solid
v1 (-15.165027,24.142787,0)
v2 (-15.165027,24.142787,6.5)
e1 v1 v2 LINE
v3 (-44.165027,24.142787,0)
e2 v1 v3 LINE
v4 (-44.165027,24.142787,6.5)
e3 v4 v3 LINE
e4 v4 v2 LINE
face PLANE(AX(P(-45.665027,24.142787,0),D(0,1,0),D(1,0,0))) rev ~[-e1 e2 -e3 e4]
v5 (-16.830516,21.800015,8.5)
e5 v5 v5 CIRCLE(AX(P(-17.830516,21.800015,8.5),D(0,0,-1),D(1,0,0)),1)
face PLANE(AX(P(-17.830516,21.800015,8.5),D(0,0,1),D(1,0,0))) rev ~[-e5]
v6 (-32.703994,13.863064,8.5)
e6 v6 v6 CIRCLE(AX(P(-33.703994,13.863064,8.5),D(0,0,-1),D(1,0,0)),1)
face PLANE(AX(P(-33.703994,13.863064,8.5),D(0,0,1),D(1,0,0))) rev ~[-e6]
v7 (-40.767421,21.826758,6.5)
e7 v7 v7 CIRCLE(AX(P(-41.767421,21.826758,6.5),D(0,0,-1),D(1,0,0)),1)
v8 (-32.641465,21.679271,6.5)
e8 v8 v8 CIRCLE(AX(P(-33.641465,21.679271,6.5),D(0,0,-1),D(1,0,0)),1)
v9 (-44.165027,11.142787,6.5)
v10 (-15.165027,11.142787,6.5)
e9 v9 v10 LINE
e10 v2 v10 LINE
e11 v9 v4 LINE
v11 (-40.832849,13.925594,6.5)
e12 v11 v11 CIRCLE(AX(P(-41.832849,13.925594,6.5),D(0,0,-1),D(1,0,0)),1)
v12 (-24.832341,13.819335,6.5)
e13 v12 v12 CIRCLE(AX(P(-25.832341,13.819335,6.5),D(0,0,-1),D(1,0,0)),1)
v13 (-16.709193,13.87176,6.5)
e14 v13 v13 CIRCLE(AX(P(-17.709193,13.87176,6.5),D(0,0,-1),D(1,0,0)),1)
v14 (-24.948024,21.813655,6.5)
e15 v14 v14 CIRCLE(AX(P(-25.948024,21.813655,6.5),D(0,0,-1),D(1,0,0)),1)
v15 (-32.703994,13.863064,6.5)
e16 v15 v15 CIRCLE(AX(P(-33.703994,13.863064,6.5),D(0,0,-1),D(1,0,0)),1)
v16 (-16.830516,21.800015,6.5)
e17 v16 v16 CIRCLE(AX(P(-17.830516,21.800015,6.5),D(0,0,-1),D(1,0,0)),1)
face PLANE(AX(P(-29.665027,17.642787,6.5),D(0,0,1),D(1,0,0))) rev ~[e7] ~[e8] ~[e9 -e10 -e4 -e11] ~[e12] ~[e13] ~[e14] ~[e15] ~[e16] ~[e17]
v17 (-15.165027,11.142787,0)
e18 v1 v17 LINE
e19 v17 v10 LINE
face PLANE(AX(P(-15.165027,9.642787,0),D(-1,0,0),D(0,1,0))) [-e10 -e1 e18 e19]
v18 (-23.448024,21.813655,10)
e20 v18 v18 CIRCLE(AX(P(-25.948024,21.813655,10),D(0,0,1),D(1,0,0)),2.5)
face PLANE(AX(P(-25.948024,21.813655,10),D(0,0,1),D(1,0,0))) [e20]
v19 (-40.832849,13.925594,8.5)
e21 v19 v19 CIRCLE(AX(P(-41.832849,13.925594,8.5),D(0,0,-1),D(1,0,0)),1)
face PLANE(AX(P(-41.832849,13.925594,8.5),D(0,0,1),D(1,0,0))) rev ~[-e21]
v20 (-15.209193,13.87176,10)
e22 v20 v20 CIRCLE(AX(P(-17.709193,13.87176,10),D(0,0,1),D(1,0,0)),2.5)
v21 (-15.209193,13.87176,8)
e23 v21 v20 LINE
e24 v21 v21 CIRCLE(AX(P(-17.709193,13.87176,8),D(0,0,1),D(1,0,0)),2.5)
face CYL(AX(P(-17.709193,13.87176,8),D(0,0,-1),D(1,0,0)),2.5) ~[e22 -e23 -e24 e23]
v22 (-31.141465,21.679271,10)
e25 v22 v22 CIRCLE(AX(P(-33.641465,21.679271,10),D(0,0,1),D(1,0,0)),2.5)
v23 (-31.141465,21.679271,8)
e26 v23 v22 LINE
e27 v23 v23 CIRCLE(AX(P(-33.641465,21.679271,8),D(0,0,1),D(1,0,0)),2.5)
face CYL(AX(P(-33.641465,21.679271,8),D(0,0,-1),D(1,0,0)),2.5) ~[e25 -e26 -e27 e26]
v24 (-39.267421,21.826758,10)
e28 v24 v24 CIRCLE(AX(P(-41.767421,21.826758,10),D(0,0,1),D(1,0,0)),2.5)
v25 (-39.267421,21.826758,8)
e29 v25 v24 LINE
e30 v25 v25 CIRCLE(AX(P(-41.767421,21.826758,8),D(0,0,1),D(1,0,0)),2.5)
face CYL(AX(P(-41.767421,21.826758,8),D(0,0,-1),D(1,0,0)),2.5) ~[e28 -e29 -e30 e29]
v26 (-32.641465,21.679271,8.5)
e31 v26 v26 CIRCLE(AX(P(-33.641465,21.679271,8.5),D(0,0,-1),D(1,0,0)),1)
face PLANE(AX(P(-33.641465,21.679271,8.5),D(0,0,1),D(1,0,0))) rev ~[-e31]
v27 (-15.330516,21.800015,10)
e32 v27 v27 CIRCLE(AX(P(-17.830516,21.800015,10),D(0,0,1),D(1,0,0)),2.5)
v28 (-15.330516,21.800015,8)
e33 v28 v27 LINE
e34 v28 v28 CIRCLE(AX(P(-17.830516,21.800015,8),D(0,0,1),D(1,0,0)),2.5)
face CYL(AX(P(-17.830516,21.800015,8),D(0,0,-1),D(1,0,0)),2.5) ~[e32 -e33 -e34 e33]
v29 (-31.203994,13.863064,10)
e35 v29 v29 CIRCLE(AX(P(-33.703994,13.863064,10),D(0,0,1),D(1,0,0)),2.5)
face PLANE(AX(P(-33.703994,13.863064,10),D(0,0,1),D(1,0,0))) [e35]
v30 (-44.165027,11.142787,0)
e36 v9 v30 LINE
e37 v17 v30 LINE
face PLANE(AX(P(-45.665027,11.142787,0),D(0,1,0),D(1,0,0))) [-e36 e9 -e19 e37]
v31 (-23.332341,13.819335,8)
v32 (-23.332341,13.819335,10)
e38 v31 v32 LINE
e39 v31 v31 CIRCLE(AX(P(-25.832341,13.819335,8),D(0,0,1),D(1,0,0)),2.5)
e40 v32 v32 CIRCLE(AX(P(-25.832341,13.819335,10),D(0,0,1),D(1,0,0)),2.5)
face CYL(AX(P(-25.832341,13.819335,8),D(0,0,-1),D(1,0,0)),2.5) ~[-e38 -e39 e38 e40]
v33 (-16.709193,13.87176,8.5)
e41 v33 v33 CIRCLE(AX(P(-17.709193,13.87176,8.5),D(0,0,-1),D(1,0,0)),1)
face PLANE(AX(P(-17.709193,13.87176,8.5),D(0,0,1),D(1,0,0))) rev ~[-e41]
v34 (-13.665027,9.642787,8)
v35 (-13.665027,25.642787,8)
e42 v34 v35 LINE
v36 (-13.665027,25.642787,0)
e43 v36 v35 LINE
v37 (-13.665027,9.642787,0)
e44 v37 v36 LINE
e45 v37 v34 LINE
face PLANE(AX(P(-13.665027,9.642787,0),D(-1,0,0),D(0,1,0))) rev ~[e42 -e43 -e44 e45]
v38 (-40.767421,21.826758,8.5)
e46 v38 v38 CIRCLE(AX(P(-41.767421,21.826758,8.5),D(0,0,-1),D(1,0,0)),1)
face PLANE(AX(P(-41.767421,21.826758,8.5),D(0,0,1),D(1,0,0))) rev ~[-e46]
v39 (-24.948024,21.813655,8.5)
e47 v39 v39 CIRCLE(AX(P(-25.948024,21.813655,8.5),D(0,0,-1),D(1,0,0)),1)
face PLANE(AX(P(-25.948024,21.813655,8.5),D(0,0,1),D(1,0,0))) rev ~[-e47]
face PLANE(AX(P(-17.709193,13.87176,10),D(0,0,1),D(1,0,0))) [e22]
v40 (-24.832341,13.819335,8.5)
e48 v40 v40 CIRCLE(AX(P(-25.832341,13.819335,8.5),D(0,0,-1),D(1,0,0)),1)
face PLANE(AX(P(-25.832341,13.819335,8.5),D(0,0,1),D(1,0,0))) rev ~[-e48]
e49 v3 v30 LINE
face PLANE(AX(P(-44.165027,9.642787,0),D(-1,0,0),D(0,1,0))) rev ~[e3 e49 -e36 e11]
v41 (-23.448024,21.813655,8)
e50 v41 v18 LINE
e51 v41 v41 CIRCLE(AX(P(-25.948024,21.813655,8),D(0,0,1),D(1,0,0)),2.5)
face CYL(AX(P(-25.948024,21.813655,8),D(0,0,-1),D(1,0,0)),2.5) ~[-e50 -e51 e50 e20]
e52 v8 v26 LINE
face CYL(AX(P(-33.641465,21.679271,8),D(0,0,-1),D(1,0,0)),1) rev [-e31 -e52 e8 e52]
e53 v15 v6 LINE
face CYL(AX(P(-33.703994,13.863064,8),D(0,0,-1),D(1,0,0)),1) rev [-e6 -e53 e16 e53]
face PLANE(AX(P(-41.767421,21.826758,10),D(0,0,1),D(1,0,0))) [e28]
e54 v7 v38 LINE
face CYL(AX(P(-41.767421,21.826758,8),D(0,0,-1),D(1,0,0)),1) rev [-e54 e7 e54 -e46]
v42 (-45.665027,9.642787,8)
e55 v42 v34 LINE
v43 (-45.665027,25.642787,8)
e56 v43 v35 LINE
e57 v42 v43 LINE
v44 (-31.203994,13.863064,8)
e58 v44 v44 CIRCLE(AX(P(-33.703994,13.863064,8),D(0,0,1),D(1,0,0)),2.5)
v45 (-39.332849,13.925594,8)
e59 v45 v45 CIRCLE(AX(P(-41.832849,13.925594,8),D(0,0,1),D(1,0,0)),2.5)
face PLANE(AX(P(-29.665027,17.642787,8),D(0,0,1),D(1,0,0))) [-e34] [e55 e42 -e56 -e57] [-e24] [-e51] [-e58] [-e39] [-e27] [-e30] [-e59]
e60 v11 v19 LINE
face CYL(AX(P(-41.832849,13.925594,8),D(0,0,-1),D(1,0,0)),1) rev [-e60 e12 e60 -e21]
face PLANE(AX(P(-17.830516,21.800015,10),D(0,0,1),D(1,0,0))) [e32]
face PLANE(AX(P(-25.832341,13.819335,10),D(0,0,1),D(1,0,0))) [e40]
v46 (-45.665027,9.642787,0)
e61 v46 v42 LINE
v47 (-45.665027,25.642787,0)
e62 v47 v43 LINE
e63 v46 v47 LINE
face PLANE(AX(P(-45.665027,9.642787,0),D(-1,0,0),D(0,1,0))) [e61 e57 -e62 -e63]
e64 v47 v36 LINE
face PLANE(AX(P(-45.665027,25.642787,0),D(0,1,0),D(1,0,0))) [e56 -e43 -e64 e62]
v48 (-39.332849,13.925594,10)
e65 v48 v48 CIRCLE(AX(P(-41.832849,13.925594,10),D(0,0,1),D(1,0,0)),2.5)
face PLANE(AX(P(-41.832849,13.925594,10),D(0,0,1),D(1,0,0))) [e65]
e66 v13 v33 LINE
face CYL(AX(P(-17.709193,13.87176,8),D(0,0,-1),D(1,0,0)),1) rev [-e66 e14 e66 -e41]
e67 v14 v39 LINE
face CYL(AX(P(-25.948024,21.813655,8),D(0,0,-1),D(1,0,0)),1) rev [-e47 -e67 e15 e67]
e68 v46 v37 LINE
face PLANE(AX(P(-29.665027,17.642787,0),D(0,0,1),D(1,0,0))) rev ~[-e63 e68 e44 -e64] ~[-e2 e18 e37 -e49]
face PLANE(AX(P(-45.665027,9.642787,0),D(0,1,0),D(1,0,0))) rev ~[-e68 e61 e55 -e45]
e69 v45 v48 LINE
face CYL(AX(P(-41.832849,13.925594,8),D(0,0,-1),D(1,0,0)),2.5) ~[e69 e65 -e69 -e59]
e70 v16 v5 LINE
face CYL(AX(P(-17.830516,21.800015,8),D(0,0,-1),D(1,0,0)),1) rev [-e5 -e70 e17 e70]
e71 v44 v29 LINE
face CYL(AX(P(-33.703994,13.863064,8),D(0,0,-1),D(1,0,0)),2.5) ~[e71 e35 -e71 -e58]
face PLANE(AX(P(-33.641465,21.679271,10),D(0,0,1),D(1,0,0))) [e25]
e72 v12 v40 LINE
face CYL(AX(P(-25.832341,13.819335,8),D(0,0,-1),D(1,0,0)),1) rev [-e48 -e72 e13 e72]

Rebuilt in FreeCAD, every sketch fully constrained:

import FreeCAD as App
import Part
import Sketcher
from FreeCAD import Vector
Q = App.Units.Quantity


def faces_at(feature, points):
    """Names of the faces that lie closest to the given points."""
    faces = feature.Shape.Faces
    near = lambda p: min(range(len(faces)), key=lambda i: faces[i].distToShape(Part.Vertex(*p))[0])
    return sorted({f"Face{near(p) + 1}" for p in points})


def add_polygon(sketch, points):
    """Adds a closed chain of lines whose ends are joined by coincident constraints."""
    first, n = sketch.GeometryCount, len(points)
    for a, b in zip(points, points[1:] + points[:1]):
        sketch.addGeometry(Part.LineSegment(App.Vector(*a, 0), App.Vector(*b, 0)), False)
    for i in range(n):
        sketch.addConstraint(Sketcher.Constraint("Coincident", first + i, 2, first + (i + 1) % n, 1))

doc = App.newDocument("Part")
params = doc.addObject("Spreadsheet::Sheet", "Params")
for row, (alias, value) in enumerate([
    ("sketch1_width", "32 mm"),
    ("sketch1_height", "16 mm"),
    ("pad1_length", "8 mm"),
    ("sketch2_diameter", "5 mm"),
    ("pad2_length", "2 mm"),
    ("thickness_wall", "1.5 mm"),
], start=1):
    params.set(f"A{row}", alias)
    params.set(f"B{row}", "=" + value)
    params.setAlias(f"B{row}", alias)

body = doc.addObject("PartDesign::Body", "Body")

# Sketch on XY plane
sketch1 = body.newObject("Sketcher::SketchObject", "Sketch")
sketch1.AttachmentSupport = (doc.getObject("XY_Plane"), [""])
sketch1.MapMode = "FlatFace"
add_polygon(sketch1, [(-45.665027, 25.642787), (-45.665027, 9.642787), (-13.665027, 9.642787), (-13.665027, 25.642787)])  # lines 0-3
sketch1.addConstraint([
    Sketcher.Constraint("Vertical", 0),
    Sketcher.Constraint("Horizontal", 1),
    Sketcher.Constraint("Vertical", 2),
    Sketcher.Constraint("Horizontal", 3),
    Sketcher.Constraint("DistanceX", 1, 1, 1, 2, Q("32 mm")),
    Sketcher.Constraint("DistanceY", 0, 2, 0, 1, Q("16 mm")),
    Sketcher.Constraint("DistanceX", 0, 2, -1, 1, Q("45.665027 mm")),
    Sketcher.Constraint("DistanceY", -1, 1, 0, 2, Q("9.642787 mm")),
])
sketch1.setExpression("Constraints[8]", "Params.sketch1_width")
sketch1.setExpression("Constraints[9]", "Params.sketch1_height")
pad1 = body.newObject("PartDesign::Pad", "Pad")
pad1.Profile = sketch1
pad1.setExpression("Length", "Params.pad1_length")

# Sketch on XY plane
sketch2 = body.newObject("Sketcher::SketchObject", "Sketch001")
sketch2.AttachmentSupport = (doc.getObject("XY_Plane"), [""])
sketch2.MapMode = "FlatFace"
sketch2.AttachmentOffset = App.Placement(Vector(0, 0, 8), App.Rotation())
sketch2.addGeometry([
    Part.Circle(Vector(-17.830516, 21.800015, 0), Vector(0, 0, 1), 2.5),  # 0
    Part.Circle(Vector(-25.948024, 21.813655, 0), Vector(0, 0, 1), 2.5),  # 1
    Part.Circle(Vector(-33.641465, 21.679271, 0), Vector(0, 0, 1), 2.5),  # 2
    Part.Circle(Vector(-25.832341, 13.819335, 0), Vector(0, 0, 1), 2.5),  # 3
    Part.Circle(Vector(-33.703994, 13.863064, 0), Vector(0, 0, 1), 2.5),  # 4
    Part.Circle(Vector(-17.709193, 13.87176, 0), Vector(0, 0, 1), 2.5),  # 5
    Part.Circle(Vector(-41.832849, 13.925594, 0), Vector(0, 0, 1), 2.5),  # 6
    Part.Circle(Vector(-41.767421, 21.826758, 0), Vector(0, 0, 1), 2.5),  # 7
], False)
sketch2.addConstraint([
    Sketcher.Constraint("Equal", 0, 1),
    Sketcher.Constraint("Equal", 1, 2),
    Sketcher.Constraint("Equal", 2, 3),
    Sketcher.Constraint("Equal", 3, 4),
    Sketcher.Constraint("Equal", 4, 5),
    Sketcher.Constraint("Equal", 5, 6),
    Sketcher.Constraint("Equal", 6, 7),
    Sketcher.Constraint("Diameter", 0, Q("5 mm")),
    Sketcher.Constraint("DistanceX", 4, 3, 5, 3, Q("15.994801 mm")),
    Sketcher.Constraint("DistanceY", -1, 1, 2, 3, Q("21.679271 mm")),
    Sketcher.Constraint("DistanceX", 3, 3, -1, 1, Q("25.832341 mm")),
    Sketcher.Constraint("DistanceY", -1, 1, 5, 3, Q("13.87176 mm")),
    Sketcher.Constraint("DistanceX", 6, 3, -1, 1, Q("41.832849 mm")),
    Sketcher.Constraint("DistanceX", 7, 3, -1, 1, Q("41.767421 mm")),
    Sketcher.Constraint("DistanceX", 1, 3, 0, 3, Q("8.117508 mm")),
    Sketcher.Constraint("DistanceY", 0, 3, 1, 3, Q("0.01364 mm")),
    Sketcher.Constraint("DistanceX", 2, 3, 1, 3, Q("7.693441 mm")),
    Sketcher.Constraint("DistanceY", 3, 3, 1, 3, Q("7.99432 mm")),
    Sketcher.Constraint("DistanceX", 4, 3, 2, 3, Q("0.062529 mm")),
    Sketcher.Constraint("DistanceY", 3, 3, 4, 3, Q("0.04373 mm")),
    Sketcher.Constraint("DistanceX", 3, 3, 5, 3, Q("8.123148 mm")),
    Sketcher.Constraint("DistanceY", 4, 3, 6, 3, Q("0.06253 mm")),
    Sketcher.Constraint("DistanceY", -1, 1, 0, 3, Q("21.800015 mm")),
    Sketcher.Constraint("DistanceY", -1, 1, 7, 3, Q("21.826758 mm")),
])
sketch2.setExpression("Constraints[7]", "Params.sketch2_diameter")
pad2 = body.newObject("PartDesign::Pad", "Pad001")
pad2.Profile = sketch2
pad2.setExpression("Length", "Params.pad2_length")
doc.recompute()

thickness = body.newObject("PartDesign::Thickness", "Thickness")
thickness.Base = (pad2, faces_at(pad2, [(-29.665, 17.643, 0)]))
thickness.setExpression("Value", "Params.thickness_wall")
thickness.Reversed = True
thickness.Join = "Intersection"

doc.recompute()
